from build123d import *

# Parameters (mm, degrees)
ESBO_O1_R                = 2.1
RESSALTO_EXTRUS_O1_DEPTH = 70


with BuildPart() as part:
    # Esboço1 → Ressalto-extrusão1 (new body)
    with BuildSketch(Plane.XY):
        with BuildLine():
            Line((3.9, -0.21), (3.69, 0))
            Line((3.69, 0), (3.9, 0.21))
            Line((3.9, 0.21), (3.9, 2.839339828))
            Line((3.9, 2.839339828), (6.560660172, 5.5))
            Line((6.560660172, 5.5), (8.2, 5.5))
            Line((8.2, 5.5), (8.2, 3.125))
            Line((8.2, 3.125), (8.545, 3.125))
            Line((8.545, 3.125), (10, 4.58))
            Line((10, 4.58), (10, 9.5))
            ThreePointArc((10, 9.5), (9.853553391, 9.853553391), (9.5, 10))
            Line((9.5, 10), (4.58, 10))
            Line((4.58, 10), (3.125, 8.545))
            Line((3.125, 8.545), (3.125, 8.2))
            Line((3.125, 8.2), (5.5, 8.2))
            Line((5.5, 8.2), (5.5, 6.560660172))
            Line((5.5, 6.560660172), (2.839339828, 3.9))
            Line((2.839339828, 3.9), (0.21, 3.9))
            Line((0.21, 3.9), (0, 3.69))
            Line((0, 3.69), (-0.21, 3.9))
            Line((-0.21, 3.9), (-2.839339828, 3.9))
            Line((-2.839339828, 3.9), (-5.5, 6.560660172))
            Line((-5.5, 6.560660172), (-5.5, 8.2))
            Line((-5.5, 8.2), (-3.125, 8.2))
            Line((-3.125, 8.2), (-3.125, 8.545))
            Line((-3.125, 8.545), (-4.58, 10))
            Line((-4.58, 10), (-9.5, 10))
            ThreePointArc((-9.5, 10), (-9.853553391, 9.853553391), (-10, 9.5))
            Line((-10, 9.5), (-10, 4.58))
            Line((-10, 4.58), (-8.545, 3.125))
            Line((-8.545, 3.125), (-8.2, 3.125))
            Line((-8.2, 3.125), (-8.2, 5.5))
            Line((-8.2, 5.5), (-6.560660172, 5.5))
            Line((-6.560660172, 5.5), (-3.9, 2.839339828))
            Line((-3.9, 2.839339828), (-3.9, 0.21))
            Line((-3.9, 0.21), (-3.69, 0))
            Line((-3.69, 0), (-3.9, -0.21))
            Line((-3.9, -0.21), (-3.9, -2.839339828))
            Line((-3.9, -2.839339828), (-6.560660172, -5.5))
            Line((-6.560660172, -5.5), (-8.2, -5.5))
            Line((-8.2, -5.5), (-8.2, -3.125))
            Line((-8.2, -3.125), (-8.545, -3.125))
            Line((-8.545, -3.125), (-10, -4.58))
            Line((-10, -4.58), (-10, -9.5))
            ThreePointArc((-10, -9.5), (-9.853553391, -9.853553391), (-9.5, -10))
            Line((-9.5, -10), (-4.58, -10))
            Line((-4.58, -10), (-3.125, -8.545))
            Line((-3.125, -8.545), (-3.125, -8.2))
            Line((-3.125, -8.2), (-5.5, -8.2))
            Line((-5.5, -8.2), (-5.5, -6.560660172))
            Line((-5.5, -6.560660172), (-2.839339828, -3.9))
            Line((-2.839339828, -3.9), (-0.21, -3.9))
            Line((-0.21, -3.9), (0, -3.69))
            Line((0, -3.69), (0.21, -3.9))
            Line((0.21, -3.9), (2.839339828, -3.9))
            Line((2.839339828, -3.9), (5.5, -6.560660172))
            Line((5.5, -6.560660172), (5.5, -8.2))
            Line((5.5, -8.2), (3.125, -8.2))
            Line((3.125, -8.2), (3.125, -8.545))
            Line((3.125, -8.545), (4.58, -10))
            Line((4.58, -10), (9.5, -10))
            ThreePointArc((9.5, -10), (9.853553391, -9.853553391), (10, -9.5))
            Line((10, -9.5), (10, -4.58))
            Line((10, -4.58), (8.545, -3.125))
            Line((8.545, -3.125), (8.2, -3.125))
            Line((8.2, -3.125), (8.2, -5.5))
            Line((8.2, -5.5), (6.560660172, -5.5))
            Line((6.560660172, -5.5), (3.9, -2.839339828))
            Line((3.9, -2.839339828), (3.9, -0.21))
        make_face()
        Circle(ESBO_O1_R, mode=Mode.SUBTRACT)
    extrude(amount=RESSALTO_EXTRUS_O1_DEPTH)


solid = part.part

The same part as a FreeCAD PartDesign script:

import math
import FreeCAD as App
import Part
import Sketcher
from FreeCAD import Vector

doc = App.newDocument("Part")
body = doc.addObject("PartDesign::Body", "Body")

sketch1 = doc.addObject("Sketcher::SketchObject", "Sketch")
body.addObject(sketch1)
sketch1.AttachmentSupport = (doc.XY_Plane, [""])
sketch1.MapMode = "FlatFace"
sketch1.addGeometry([
    Part.LineSegment(Vector(3.9, -0.21, 0), Vector(3.69, 0, 0)),
    Part.LineSegment(Vector(3.69, 0, 0), Vector(3.9, 0.21, 0)),
    Part.LineSegment(Vector(3.9, 0.21, 0), Vector(3.9, 2.83934, 0)),
    Part.LineSegment(Vector(3.9, 2.83934, 0), Vector(6.56066, 5.5, 0)),
    Part.LineSegment(Vector(6.56066, 5.5, 0), Vector(8.2, 5.5, 0)),
    Part.LineSegment(Vector(8.2, 5.5, 0), Vector(8.2, 3.125, 0)),
    Part.LineSegment(Vector(8.2, 3.125, 0), Vector(8.545, 3.125, 0)),
    Part.LineSegment(Vector(8.545, 3.125, 0), Vector(10, 4.58, 0)),
    Part.LineSegment(Vector(10, 4.58, 0), Vector(10, 9.5, 0)),
    Part.ArcOfCircle(Part.Circle(Vector(9.5, 9.5, 0), Vector(0, 0, 1), 0.5), math.radians(0), math.radians(90)),
    Part.LineSegment(Vector(9.5, 10, 0), Vector(4.58, 10, 0)),
    Part.LineSegment(Vector(4.58, 10, 0), Vector(3.125, 8.545, 0)),
    Part.LineSegment(Vector(3.125, 8.545, 0), Vector(3.125, 8.2, 0)),
    Part.LineSegment(Vector(3.125, 8.2, 0), Vector(5.5, 8.2, 0)),
    Part.LineSegment(Vector(5.5, 8.2, 0), Vector(5.5, 6.56066, 0)),
    Part.LineSegment(Vector(5.5, 6.56066, 0), Vector(2.83934, 3.9, 0)),
    Part.LineSegment(Vector(2.83934, 3.9, 0), Vector(0.21, 3.9, 0)),
    Part.LineSegment(Vector(0.21, 3.9, 0), Vector(0, 3.69, 0)),
    Part.LineSegment(Vector(0, 3.69, 0), Vector(-0.21, 3.9, 0)),
    Part.LineSegment(Vector(-0.21, 3.9, 0), Vector(-2.83934, 3.9, 0)),
    Part.LineSegment(Vector(-2.83934, 3.9, 0), Vector(-5.5, 6.56066, 0)),
    Part.LineSegment(Vector(-5.5, 6.56066, 0), Vector(-5.5, 8.2, 0)),
    Part.LineSegment(Vector(-5.5, 8.2, 0), Vector(-3.125, 8.2, 0)),
    Part.LineSegment(Vector(-3.125, 8.2, 0), Vector(-3.125, 8.545, 0)),
    Part.LineSegment(Vector(-3.125, 8.545, 0), Vector(-4.58, 10, 0)),
    Part.LineSegment(Vector(-4.58, 10, 0), Vector(-9.5, 10, 0)),
    Part.ArcOfCircle(Part.Circle(Vector(-9.5, 9.5, 0), Vector(0, 0, 1), 0.5), math.radians(90), math.radians(180)),
    Part.LineSegment(Vector(-10, 9.5, 0), Vector(-10, 4.58, 0)),
    Part.LineSegment(Vector(-10, 4.58, 0), Vector(-8.545, 3.125, 0)),
    Part.LineSegment(Vector(-8.545, 3.125, 0), Vector(-8.2, 3.125, 0)),
    Part.LineSegment(Vector(-8.2, 3.125, 0), Vector(-8.2, 5.5, 0)),
    Part.LineSegment(Vector(-8.2, 5.5, 0), Vector(-6.56066, 5.5, 0)),
    Part.LineSegment(Vector(-6.56066, 5.5, 0), Vector(-3.9, 2.83934, 0)),
    Part.LineSegment(Vector(-3.9, 2.83934, 0), Vector(-3.9, 0.21, 0)),
    Part.LineSegment(Vector(-3.9, 0.21, 0), Vector(-3.69, 0, 0)),
    Part.LineSegment(Vector(-3.69, 0, 0), Vector(-3.9, -0.21, 0)),
    Part.LineSegment(Vector(-3.9, -0.21, 0), Vector(-3.9, -2.83934, 0)),
    Part.LineSegment(Vector(-3.9, -2.83934, 0), Vector(-6.56066, -5.5, 0)),
    Part.LineSegment(Vector(-6.56066, -5.5, 0), Vector(-8.2, -5.5, 0)),
    Part.LineSegment(Vector(-8.2, -5.5, 0), Vector(-8.2, -3.125, 0)),
    Part.LineSegment(Vector(-8.2, -3.125, 0), Vector(-8.545, -3.125, 0)),
    Part.LineSegment(Vector(-8.545, -3.125, 0), Vector(-10, -4.58, 0)),
    Part.LineSegment(Vector(-10, -4.58, 0), Vector(-10, -9.5, 0)),
    Part.ArcOfCircle(Part.Circle(Vector(-9.5, -9.5, 0), Vector(0, 0, 1), 0.5), math.radians(180), math.radians(270)),
    Part.LineSegment(Vector(-9.5, -10, 0), Vector(-4.58, -10, 0)),
    Part.LineSegment(Vector(-4.58, -10, 0), Vector(-3.125, -8.545, 0)),
    Part.LineSegment(Vector(-3.125, -8.545, 0), Vector(-3.125, -8.2, 0)),
    Part.LineSegment(Vector(-3.125, -8.2, 0), Vector(-5.5, -8.2, 0)),
    Part.LineSegment(Vector(-5.5, -8.2, 0), Vector(-5.5, -6.56066, 0)),
    Part.LineSegment(Vector(-5.5, -6.56066, 0), Vector(-2.83934, -3.9, 0)),
    Part.LineSegment(Vector(-2.83934, -3.9, 0), Vector(-0.21, -3.9, 0)),
    Part.LineSegment(Vector(-0.21, -3.9, 0), Vector(0, -3.69, 0)),
    Part.LineSegment(Vector(0, -3.69, 0), Vector(0.21, -3.9, 0)),
    Part.LineSegment(Vector(0.21, -3.9, 0), Vector(2.83934, -3.9, 0)),
    Part.LineSegment(Vector(2.83934, -3.9, 0), Vector(5.5, -6.56066, 0)),
    Part.LineSegment(Vector(5.5, -6.56066, 0), Vector(5.5, -8.2, 0)),
    Part.LineSegment(Vector(5.5, -8.2, 0), Vector(3.125, -8.2, 0)),
    Part.LineSegment(Vector(3.125, -8.2, 0), Vector(3.125, -8.545, 0)),
    Part.LineSegment(Vector(3.125, -8.545, 0), Vector(4.58, -10, 0)),
    Part.LineSegment(Vector(4.58, -10, 0), Vector(9.5, -10, 0)),
    Part.ArcOfCircle(Part.Circle(Vector(9.5, -9.5, 0), Vector(0, 0, 1), 0.5), math.radians(-90), math.radians(0)),
    Part.LineSegment(Vector(10, -9.5, 0), Vector(10, -4.58, 0)),
    Part.LineSegment(Vector(10, -4.58, 0), Vector(8.545, -3.125, 0)),
    Part.LineSegment(Vector(8.545, -3.125, 0), Vector(8.2, -3.125, 0)),
    Part.LineSegment(Vector(8.2, -3.125, 0), Vector(8.2, -5.5, 0)),
    Part.LineSegment(Vector(8.2, -5.5, 0), Vector(6.56066, -5.5, 0)),
    Part.LineSegment(Vector(6.56066, -5.5, 0), Vector(3.9, -2.83934, 0)),
    Part.LineSegment(Vector(3.9, -2.83934, 0), Vector(3.9, -0.21, 0)),
    Part.Circle(Vector(0, 0, 0), Vector(0, 0, 1), 2.1),
], False)
sketch1.addConstraint([
    Sketcher.Constraint("Coincident", 0, 2, 1, 1),
    Sketcher.Constraint("Coincident", 1, 2, 2, 1),
    Sketcher.Constraint("Coincident", 2, 2, 3, 1),
    Sketcher.Constraint("Coincident", 3, 2, 4, 1),
    Sketcher.Constraint("Coincident", 4, 2, 5, 1),
    Sketcher.Constraint("Coincident", 5, 2, 6, 1),
    Sketcher.Constraint("Coincident", 6, 2, 7, 1),
    Sketcher.Constraint("Coincident", 7, 2, 8, 1),
    Sketcher.Constraint("Tangent", 8, 2, 9, 1),
    Sketcher.Constraint("Tangent", 9, 2, 10, 1),
    Sketcher.Constraint("Coincident", 10, 2, 11, 1),
    Sketcher.Constraint("Coincident", 11, 2, 12, 1),
    Sketcher.Constraint("Coincident", 12, 2, 13, 1),
    Sketcher.Constraint("Coincident", 13, 2, 14, 1),
    Sketcher.Constraint("Coincident", 14, 2, 15, 1),
    Sketcher.Constraint("Coincident", 15, 2, 16, 1),
    Sketcher.Constraint("Coincident", 16, 2, 17, 1),
    Sketcher.Constraint("Coincident", 17, 2, 18, 1),
    Sketcher.Constraint("Coincident", 18, 2, 19, 1),
    Sketcher.Constraint("Coincident", 19, 2, 20, 1),
    Sketcher.Constraint("Coincident", 20, 2, 21, 1),
    Sketcher.Constraint("Coincident", 21, 2, 22, 1),
    Sketcher.Constraint("Coincident", 22, 2, 23, 1),
    Sketcher.Constraint("Coincident", 23, 2, 24, 1),
    Sketcher.Constraint("Coincident", 24, 2, 25, 1),
    Sketcher.Constraint("Tangent", 25, 2, 26, 1),
    Sketcher.Constraint("Tangent", 26, 2, 27, 1),
    Sketcher.Constraint("Coincident", 27, 2, 28, 1),
    Sketcher.Constraint("Coincident", 28, 2, 29, 1),
    Sketcher.Constraint("Coincident", 29, 2, 30, 1),
    Sketcher.Constraint("Coincident", 30, 2, 31, 1),
    Sketcher.Constraint("Coincident", 31, 2, 32, 1),
    Sketcher.Constraint("Coincident", 32, 2, 33, 1),
    Sketcher.Constraint("Coincident", 33, 2, 34, 1),
    Sketcher.Constraint("Coincident", 34, 2, 35, 1),
    Sketcher.Constraint("Coincident", 35, 2, 36, 1),
    Sketcher.Constraint("Coincident", 36, 2, 37, 1),
    Sketcher.Constraint("Coincident", 37, 2, 38, 1),
    Sketcher.Constraint("Coincident", 38, 2, 39, 1),
    Sketcher.Constraint("Coincident", 39, 2, 40, 1),
    Sketcher.Constraint("Coincident", 40, 2, 41, 1),
    Sketcher.Constraint("Coincident", 41, 2, 42, 1),
    Sketcher.Constraint("Tangent", 42, 2, 43, 1),
    Sketcher.Constraint("Tangent", 43, 2, 44, 1),
    Sketcher.Constraint("Coincident", 44, 2, 45, 1),
    Sketcher.Constraint("Coincident", 45, 2, 46, 1),
    Sketcher.Constraint("Coincident", 46, 2, 47, 1),
    Sketcher.Constraint("Coincident", 47, 2, 48, 1),
    Sketcher.Constraint("Coincident", 48, 2, 49, 1),
    Sketcher.Constraint("Coincident", 49, 2, 50, 1),
    Sketcher.Constraint("Coincident", 50, 2, 51, 1),
    Sketcher.Constraint("Coincident", 51, 2, 52, 1),
    Sketcher.Constraint("Coincident", 52, 2, 53, 1),
    Sketcher.Constraint("Coincident", 53, 2, 54, 1),
    Sketcher.Constraint("Coincident", 54, 2, 55, 1),
    Sketcher.Constraint("Coincident", 55, 2, 56, 1),
    Sketcher.Constraint("Coincident", 56, 2, 57, 1),
    Sketcher.Constraint("Coincident", 57, 2, 58, 1),
    Sketcher.Constraint("Coincident", 58, 2, 59, 1),
    Sketcher.Constraint("Tangent", 59, 2, 60, 1),
    Sketcher.Constraint("Tangent", 60, 2, 61, 1),
    Sketcher.Constraint("Coincident", 61, 2, 62, 1),
    Sketcher.Constraint("Coincident", 62, 2, 63, 1),
    Sketcher.Constraint("Coincident", 63, 2, 64, 1),
    Sketcher.Constraint("Coincident", 64, 2, 65, 1),
    Sketcher.Constraint("Coincident", 65, 2, 66, 1),
    Sketcher.Constraint("Coincident", 66, 2, 67, 1),
    Sketcher.Constraint("Coincident", 67, 2, 0, 1),
    Sketcher.Constraint("Vertical", 2),
    Sketcher.Constraint("Horizontal", 4),
    Sketcher.Constraint("Vertical", 5),
    Sketcher.Constraint("Horizontal", 6),
    Sketcher.Constraint("Vertical", 8),
    Sketcher.Constraint("Horizontal", 10),
    Sketcher.Constraint("Vertical", 12),
    Sketcher.Constraint("Horizontal", 13),
    Sketcher.Constraint("Vertical", 14),
    Sketcher.Constraint("Horizontal", 16),
    Sketcher.Constraint("Horizontal", 19),
    Sketcher.Constraint("Vertical", 21),
    Sketcher.Constraint("Horizontal", 22),
    Sketcher.Constraint("Vertical", 23),
    Sketcher.Constraint("Horizontal", 25),
    Sketcher.Constraint("Vertical", 27),
    Sketcher.Constraint("Horizontal", 29),
    Sketcher.Constraint("Vertical", 30),
    Sketcher.Constraint("Horizontal", 31),
    Sketcher.Constraint("Vertical", 33),
    Sketcher.Constraint("Vertical", 36),
    Sketcher.Constraint("Horizontal", 38),
    Sketcher.Constraint("Vertical", 39),
    Sketcher.Constraint("Horizontal", 40),
    Sketcher.Constraint("Vertical", 42),
    Sketcher.Constraint("Horizontal", 44),
    Sketcher.Constraint("Vertical", 46),
    Sketcher.Constraint("Horizontal", 47),
    Sketcher.Constraint("Vertical", 48),
    Sketcher.Constraint("Horizontal", 50),
    Sketcher.Constraint("Horizontal", 53),
    Sketcher.Constraint("Vertical", 55),
    Sketcher.Constraint("Horizontal", 56),
    Sketcher.Constraint("Vertical", 57),
    Sketcher.Constraint("Horizontal", 59),
    Sketcher.Constraint("Vertical", 61),
    Sketcher.Constraint("Horizontal", 63),
    Sketcher.Constraint("Vertical", 64),
    Sketcher.Constraint("Horizontal", 65),
    Sketcher.Constraint("Vertical", 67),
    Sketcher.Constraint("Coincident", 68, 3, -1, 1),
    Sketcher.Constraint("Equal", 9, 26),
    Sketcher.Constraint("Equal", 26, 43),
    Sketcher.Constraint("Equal", 43, 60),
    Sketcher.Constraint("Symmetric", 9, 3, 43, 3, -1, 1),
    Sketcher.Constraint("Symmetric", 26, 3, 60, 3, -1, 1),
    Sketcher.Constraint("Symmetric", 0, 2, 34, 2, -1, 1),
    Sketcher.Constraint("Symmetric", 1, 2, 35, 2, -1, 1),
    Sketcher.Constraint("Symmetric", 3, 2, 37, 2, -1, 1),
    Sketcher.Constraint("Symmetric", 5, 2, 39, 2, -1, 1),
    Sketcher.Constraint("Symmetric", 11, 2, 45, 2, -1, 1),
    Sketcher.Constraint("Symmetric", 13, 2, 47, 2, -1, 1),
    Sketcher.Constraint("Symmetric", 15, 2, 49, 2, -1, 1),
    Sketcher.Constraint("Symmetric", 17, 2, 51, 2, -1, 1),
    Sketcher.Constraint("Symmetric", 18, 2, 52, 2, -1, 1),
    Sketcher.Constraint("Symmetric", 20, 2, 54, 2, -1, 1),
    Sketcher.Constraint("Symmetric", 22, 2, 56, 2, -1, 1),
    Sketcher.Constraint("Symmetric", 28, 2, 62, 2, -1, 1),
    Sketcher.Constraint("Symmetric", 30, 2, 64, 2, -1, 1),
    Sketcher.Constraint("Symmetric", 32, 2, 66, 2, -1, 1),
    Sketcher.Constraint("Symmetric", 9, 3, 26, 3, -2),
    Sketcher.Constraint("Symmetric", 16, 2, 18, 2, -2),
    Sketcher.Constraint("Symmetric", 14, 2, 20, 2, -2),
    Sketcher.Constraint("Symmetric", 12, 2, 22, 2, -2),
    Sketcher.Constraint("Symmetric", 6, 2, 28, 2, -2),
    Sketcher.Constraint("Symmetric", 4, 2, 30, 2, -2),
    Sketcher.Constraint("Symmetric", 2, 2, 32, 2, -2),
    Sketcher.Constraint("PointOnObject", 0, 2, -1),
    Sketcher.Constraint("PointOnObject", 17, 2, -2),
    Sketcher.Constraint("Perpendicular", 0, 1),
    Sketcher.Constraint("Parallel", 1, 3),
    Sketcher.Constraint("Parallel", 3, 7),
    Sketcher.Constraint("Parallel", 7, 11),
    Sketcher.Constraint("Parallel", 11, 15),
    Sketcher.Constraint("Parallel", 15, 17),
    Sketcher.Constraint("Perpendicular", 17, 18),
    Sketcher.Constraint("Parallel", 18, 20),
    Sketcher.Constraint("Parallel", 20, 24),
    Sketcher.Constraint("Parallel", 24, 28),
    Sketcher.Constraint("Parallel", 28, 32),
    Sketcher.Constraint("Parallel", 32, 34),
    Sketcher.Constraint("Parallel", 35, 37),
    Sketcher.Constraint("Parallel", 37, 41),
    Sketcher.Constraint("Parallel", 41, 45),
    Sketcher.Constraint("Parallel", 45, 49),
    Sketcher.Constraint("Parallel", 49, 51),
    Sketcher.Constraint("Parallel", 52, 54),
    Sketcher.Constraint("Parallel", 54, 58),
    Sketcher.Constraint("Parallel", 58, 62),
    Sketcher.Constraint("Parallel", 62, 66),
    Sketcher.Constraint("Horizontal", 11, 2, 23, 2),
    Sketcher.Constraint("Horizontal", 45, 2, 57, 2),
    Sketcher.Constraint("Horizontal", 41, 2, 61, 2),
    Sketcher.Constraint("Equal", 53, 2),
    Sketcher.Constraint("Equal", 56, 5),
    Sketcher.Constraint("Equal", 59, 8),
    Sketcher.Constraint("Equal", 63, 12),
    Sketcher.Constraint("Equal", 65, 14),
    Sketcher.Constraint("Equal", 7, 11),
    Sketcher.Constraint("Equal", 3, 15),
    Sketcher.Constraint("Equal", 1, 17),
    Sketcher.Constraint("Diameter", 68, 4.2),
    Sketcher.Constraint("Radius", 9, 0.5),
    Sketcher.Constraint("DistanceX", -1, 1, 7, 2, 10.0),
    Sketcher.Constraint("DistanceX", 10, 2, 10, 1, 4.92),
    Sketcher.Constraint("DistanceX", -1, 1, 1, 2, 3.9),
    Sketcher.Constraint("DistanceY", -1, 1, 3, 2, 5.5),
    Sketcher.Constraint("DistanceX", -1, 1, 4, 2, 8.2),
    Sketcher.Constraint("DistanceX", 6, 1, 6, 2, 0.345),
    Sketcher.Constraint("DistanceX", -1, 1, 0, 2, 3.69),
    Sketcher.Constraint("DistanceX", 4, 1, 4, 2, 1.63934),
])
pad1 = doc.addObject("PartDesign::Pad", "Pad")
body.addObject(pad1)
pad1.Profile = sketch1
pad1.Length = 70

doc.recompute()
